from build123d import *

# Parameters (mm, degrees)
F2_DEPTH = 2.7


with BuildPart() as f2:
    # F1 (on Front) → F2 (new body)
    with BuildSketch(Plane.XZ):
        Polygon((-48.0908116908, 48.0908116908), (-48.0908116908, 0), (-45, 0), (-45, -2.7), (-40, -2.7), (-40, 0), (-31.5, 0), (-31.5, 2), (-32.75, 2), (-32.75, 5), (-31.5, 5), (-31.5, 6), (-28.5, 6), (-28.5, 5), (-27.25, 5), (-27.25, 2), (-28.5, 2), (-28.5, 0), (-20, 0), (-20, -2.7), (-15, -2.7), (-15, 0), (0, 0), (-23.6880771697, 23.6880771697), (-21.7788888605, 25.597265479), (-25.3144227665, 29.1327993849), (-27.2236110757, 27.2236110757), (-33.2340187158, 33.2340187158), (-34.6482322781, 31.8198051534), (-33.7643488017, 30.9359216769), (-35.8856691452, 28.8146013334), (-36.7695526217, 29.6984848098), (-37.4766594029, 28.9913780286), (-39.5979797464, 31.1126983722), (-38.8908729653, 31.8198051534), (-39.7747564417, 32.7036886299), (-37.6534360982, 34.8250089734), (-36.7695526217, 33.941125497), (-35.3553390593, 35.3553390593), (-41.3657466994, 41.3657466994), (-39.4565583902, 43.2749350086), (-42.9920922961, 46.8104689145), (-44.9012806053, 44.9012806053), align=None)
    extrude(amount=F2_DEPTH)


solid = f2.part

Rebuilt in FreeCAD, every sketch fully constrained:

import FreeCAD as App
import Part
import Sketcher

V = App.Vector
Q = App.Units.Quantity


def add_polygon(sketch, points):
    """Adds a closed chain of lines whose ends are joined by coincident constraints."""
    first, n = sketch.GeometryCount, len(points)
    for a, b in zip(points, points[1:] + points[:1]):
        sketch.addGeometry(Part.LineSegment(App.Vector(*a, 0), App.Vector(*b, 0)), False)
    for i in range(n):
        sketch.addConstraint(Sketcher.Constraint("Coincident", first + i, 2, first + (i + 1) % n, 1))

doc = App.newDocument("Part")
body = doc.addObject("PartDesign::Body", "Body")

# Sketch on XZ plane
sketch1 = body.newObject("Sketcher::SketchObject", "Sketch")
sketch1.AttachmentSupport = (doc.getObject("XZ_Plane"), [""])
sketch1.MapMode = "FlatFace"
add_polygon(sketch1, [(-48.1, 48.1), (-48.1, 0), (-45, 0), (-45, -2.7), (-40, -2.7), (-40, 0), (-31.5, 0), (-31.5, 2), (-32.8, 2), (-32.8, 5), (-31.5, 5), (-31.5, 6), (-28.5, 6), (-28.5, 5), (-27.2, 5), (-27.2, 2), (-28.5, 2), (-28.5, 0), (-20, 0), (-20, -2.7), (-15, -2.7), (-15, 0), (0, 0), (-23.7, 23.7), (-21.8, 25.6), (-25.3, 29.1), (-27.2, 27.2), (-33.2, 33.2), (-34.6, 31.8), (-33.8, 30.9), (-35.9, 28.8), (-36.8, 29.7), (-37.5, 29), (-39.6, 31.1), (-38.9, 31.8), (-39.8, 32.7), (-37.7, 34.8), (-36.8, 33.9), (-35.4, 35.4), (-41.4, 41.4), (-39.5, 43.3), (-43, 46.8), (-44.9, 44.9)])  # lines 0-42
sketch1.addConstraint([
    Sketcher.Constraint("Vertical", 0),
    Sketcher.Constraint("Horizontal", 1),
    Sketcher.Constraint("Vertical", 2),
    Sketcher.Constraint("Horizontal", 3),
    Sketcher.Constraint("Vertical", 4),
    Sketcher.Constraint("Horizontal", 5),
    Sketcher.Constraint("Vertical", 6),
    Sketcher.Constraint("Horizontal", 7),
    Sketcher.Constraint("Vertical", 8),
    Sketcher.Constraint("Horizontal", 9),
    Sketcher.Constraint("Vertical", 10),
    Sketcher.Constraint("Horizontal", 11),
    Sketcher.Constraint("Vertical", 12),
    Sketcher.Constraint("Horizontal", 13),
    Sketcher.Constraint("Vertical", 14),
    Sketcher.Constraint("Horizontal", 15),
    Sketcher.Constraint("Vertical", 16),
    Sketcher.Constraint("Horizontal", 17),
    Sketcher.Constraint("Vertical", 18),
    Sketcher.Constraint("Horizontal", 19),
    Sketcher.Constraint("Vertical", 20),
    Sketcher.Constraint("Horizontal", 21),
    Sketcher.Constraint("Coincident", 21, 2, -1, 1),
    Sketcher.Constraint("PointOnObject", 0, 2, -1),
    Sketcher.Constraint("PointOnObject", 4, 2, -1),
    Sketcher.Constraint("PointOnObject", 16, 2, -1),
    Sketcher.Constraint("Perpendicular", 22, 23),
    Sketcher.Constraint("Perpendicular", 23, 24),
    Sketcher.Constraint("Perpendicular", 24, 25),
    Sketcher.Constraint("Perpendicular", 25, 26),
    Sketcher.Constraint("Perpendicular", 26, 27),
    Sketcher.Constraint("Perpendicular", 27, 28),
    Sketcher.Constraint("Perpendicular", 28, 29),
    Sketcher.Constraint("Perpendicular", 29, 30),
    Sketcher.Constraint("Perpendicular", 30, 31),
    Sketcher.Constraint("Perpendicular", 31, 32),
    Sketcher.Constraint("Perpendicular", 32, 33),
    Sketcher.Constraint("Perpendicular", 33, 34),
    Sketcher.Constraint("Perpendicular", 34, 35),
    Sketcher.Constraint("Perpendicular", 35, 36),
    Sketcher.Constraint("Perpendicular", 36, 37),
    Sketcher.Constraint("Perpendicular", 37, 38),
    Sketcher.Constraint("Perpendicular", 38, 39),
    Sketcher.Constraint("Perpendicular", 39, 40),
    Sketcher.Constraint("Perpendicular", 40, 41),
    Sketcher.Constraint("Perpendicular", 41, 42),
    Sketcher.Constraint("Horizontal", 9, 2, 12, 2),
    Sketcher.Constraint("Horizontal", 7, 2, 14, 2),
    Sketcher.Constraint("Horizontal", 3, 2, 18, 2),
    Sketcher.Constraint("Horizontal", 27, 2, 33, 2),
    Sketcher.Constraint("Vertical", 6, 2, 9, 2),
    Sketcher.Constraint("Vertical", 12, 2, 15, 2),
    Sketcher.Constraint("Vertical", 30, 2, 36, 2),
    Sketcher.Constraint("Equal", 9, 13),
    Sketcher.Constraint("Equal", 5, 17),
    Sketcher.Constraint("Equal", 3, 19),
    Sketcher.Constraint("Equal", 11, 8),
    Sketcher.Constraint("Equal", 23, 25),
    Sketcher.Constraint("Equal", 28, 30),
    Sketcher.Constraint("Equal", 29, 32),
    Sketcher.Constraint("Equal", 31, 33),
    Sketcher.Constraint("Equal", 30, 34),
    Sketcher.Constraint("Equal", 32, 35),
    Sketcher.Constraint("Equal", 27, 37),
    Sketcher.Constraint("Equal", 26, 38),
    Sketcher.Constraint("Equal", 25, 39),
    Sketcher.Constraint("Equal", 24, 40),
    Sketcher.Constraint("Equal", 39, 41),
    Sketcher.Constraint("DistanceX", 3, 1, 3, 2, Q("5 mm")),
    Sketcher.Constraint("DistanceX", 11, 1, 11, 2, Q("3 mm")),
    Sketcher.Constraint("DistanceX", 21, 1, 21, 2, Q("15 mm")),
    Sketcher.Constraint("DistanceY", 6, 1, 6, 2, Q("2 mm")),
    Sketcher.Constraint("DistanceY", 10, 1, 10, 2, Q("1 mm")),
    Sketcher.Constraint("Distance", 24, Q("5 mm")),
    Sketcher.Constraint("Distance", 27, Q("2 mm")),
    Sketcher.Constraint("Distance", 29, Q("3 mm")),
    Sketcher.Constraint("Distance", 31, Q("1 mm")),
    Sketcher.Constraint("DistanceX", 5, 1, 5, 2, Q("8.5 mm")),
    Sketcher.Constraint("DistanceY", 2, 2, 2, 1, Q("2.7 mm")),
    Sketcher.Constraint("Distance", 22, Q("33.5 mm")),
    Sketcher.Constraint("Distance", 23, Q("2.7 mm")),
    Sketcher.Constraint("Distance", 26, Q("8.5 mm")),
    Sketcher.Constraint("DistanceX", 7, 2, 7, 1, Q("1.25 mm")),
    Sketcher.Constraint("Distance", 28, Q("1.25 mm")),
    Sketcher.Constraint("DistanceX", 1, 1, 1, 2, Q("3.090812 mm")),
])
pad1 = body.newObject("PartDesign::Pad", "Pad")
pad1.Profile = sketch1
pad1.Length = 2.7

doc.recompute()
